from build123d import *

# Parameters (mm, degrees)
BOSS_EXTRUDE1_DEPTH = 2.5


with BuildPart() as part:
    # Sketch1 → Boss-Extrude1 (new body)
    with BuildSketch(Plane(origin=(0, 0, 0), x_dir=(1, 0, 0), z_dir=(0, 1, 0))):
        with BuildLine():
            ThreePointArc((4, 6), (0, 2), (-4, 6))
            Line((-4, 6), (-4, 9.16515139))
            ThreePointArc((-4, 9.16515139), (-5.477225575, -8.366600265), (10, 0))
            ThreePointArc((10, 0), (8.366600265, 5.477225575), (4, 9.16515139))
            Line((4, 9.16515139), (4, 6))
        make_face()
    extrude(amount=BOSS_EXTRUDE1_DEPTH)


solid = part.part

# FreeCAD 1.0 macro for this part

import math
import FreeCAD as App
import Part
import Sketcher

V = App.Vector

doc = App.newDocument("Part")
body = doc.addObject("PartDesign::Body", "Body")

sketch1 = body.newObject("Sketcher::SketchObject", "Sketch")
sketch1.AttachmentSupport = (doc.getObject("XZ_Plane"), [""])
sketch1.MapMode = "FlatFace"
sketch1.addGeometry([
    Part.ArcOfCircle(Part.Circle(V(0, -6, 0), V(0, 0, 1), 4), math.radians(0), math.radians(180)),
    Part.LineSegment(V(-4, -6, 0), V(-4, -9.2, 0)),
    Part.ArcOfCircle(Part.Circle(V(0, 0, 0), V(0, 0, 1), 10), math.radians(0), math.radians(246)),
    Part.ArcOfCircle(Part.Circle(V(0, 0, 0), V(0, 0, 1), 10), math.radians(-66), math.radians(0)),
    Part.LineSegment(V(4, -9.2, 0), V(4, -6, 0)),
], False)
sketch1.addConstraint([
    Sketcher.Constraint("Tangent", 0, 2, 1, 1),
    Sketcher.Constraint("Coincident", 1, 2, 2, 2),
    Sketcher.Constraint("Tangent", 2, 1, 3, 2),
    Sketcher.Constraint("Coincident", 3, 1, 4, 1),
    Sketcher.Constraint("Tangent", 4, 2, 0, 1),
    Sketcher.Constraint("Vertical", 1),
    Sketcher.Constraint("Vertical", 4),
    Sketcher.Constraint("Coincident", 2, 3, -1, 1),
    Sketcher.Constraint("Equal", 2, 3),
    Sketcher.Constraint("PointOnObject", 0, 3, -2),
    Sketcher.Constraint("PointOnObject", 2, 1, -1),
    Sketcher.Constraint("Radius", 0, 4.0),
    Sketcher.Constraint("Radius", 2, 10.0),
    Sketcher.Constraint("DistanceY", 0, 3, -1, 1, 6.0),
])
pad1 = body.newObject("PartDesign::Pad", "Pad")
pad1.Profile = sketch1
pad1.Length = 2.5
pad1.Reversed = True

doc.recompute()
